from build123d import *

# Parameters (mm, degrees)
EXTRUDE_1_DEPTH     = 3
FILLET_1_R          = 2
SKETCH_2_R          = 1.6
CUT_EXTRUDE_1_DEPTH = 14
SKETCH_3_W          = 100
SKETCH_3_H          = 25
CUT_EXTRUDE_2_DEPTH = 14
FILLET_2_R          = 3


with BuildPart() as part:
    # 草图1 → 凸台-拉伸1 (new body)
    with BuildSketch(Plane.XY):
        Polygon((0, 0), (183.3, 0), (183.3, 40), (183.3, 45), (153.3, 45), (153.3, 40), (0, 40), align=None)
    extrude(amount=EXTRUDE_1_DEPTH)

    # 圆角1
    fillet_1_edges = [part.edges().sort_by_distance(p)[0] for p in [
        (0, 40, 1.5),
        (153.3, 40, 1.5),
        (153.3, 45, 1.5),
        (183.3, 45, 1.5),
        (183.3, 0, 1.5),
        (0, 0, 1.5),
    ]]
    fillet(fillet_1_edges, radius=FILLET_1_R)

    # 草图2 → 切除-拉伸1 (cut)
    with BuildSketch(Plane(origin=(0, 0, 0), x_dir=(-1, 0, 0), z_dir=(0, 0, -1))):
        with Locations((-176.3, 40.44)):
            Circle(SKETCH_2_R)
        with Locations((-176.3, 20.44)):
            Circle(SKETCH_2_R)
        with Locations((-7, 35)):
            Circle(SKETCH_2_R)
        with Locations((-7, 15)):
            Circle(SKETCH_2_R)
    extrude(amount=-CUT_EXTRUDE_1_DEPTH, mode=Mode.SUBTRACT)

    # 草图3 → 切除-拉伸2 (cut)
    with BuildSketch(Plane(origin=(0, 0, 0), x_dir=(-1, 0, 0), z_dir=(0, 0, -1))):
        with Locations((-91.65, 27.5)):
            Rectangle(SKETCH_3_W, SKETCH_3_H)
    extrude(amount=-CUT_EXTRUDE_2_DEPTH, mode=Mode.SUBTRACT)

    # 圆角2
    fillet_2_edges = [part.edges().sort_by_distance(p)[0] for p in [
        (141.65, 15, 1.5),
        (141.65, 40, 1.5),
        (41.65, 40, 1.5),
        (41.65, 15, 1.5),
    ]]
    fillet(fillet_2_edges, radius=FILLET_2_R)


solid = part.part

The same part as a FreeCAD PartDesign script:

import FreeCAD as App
import Part
import Sketcher

V = App.Vector
Q = App.Units.Quantity


def edges_at(feature, points):
    """Names of the edges that pass closest to the given points."""
    edges = feature.Shape.Edges
    near = lambda p: min(range(len(edges)), key=lambda i: edges[i].distToShape(Part.Vertex(*p))[0])
    return sorted({f"Edge{near(p) + 1}" for p in points})

doc = App.newDocument("Part")
body = doc.addObject("PartDesign::Body", "Body")

# Sketch on XY plane
sketch1 = body.newObject("Sketcher::SketchObject", "Sketch")
sketch1.AttachmentSupport = (doc.getObject("XY_Plane"), [""])
sketch1.MapMode = "FlatFace"
sketch1.addGeometry(Part.LineSegment(V(0, 0, 0), V(183.3, 0, 0)), False)
sketch1.addGeometry(Part.LineSegment(V(183.3, 0, 0), V(183.3, 45, 0)), False)
sketch1.addGeometry(Part.LineSegment(V(183.3, 45, 0), V(153.3, 45, 0)), False)
sketch1.addGeometry(Part.LineSegment(V(153.3, 45, 0), V(153.3, 40, 0)), False)
sketch1.addGeometry(Part.LineSegment(V(153.3, 40, 0), V(0, 40, 0)), False)
sketch1.addGeometry(Part.LineSegment(V(0, 40, 0), V(0, 0, 0)), False)
sketch1.addConstraint(Sketcher.Constraint("Coincident", 0, 2, 1, 1))
sketch1.addConstraint(Sketcher.Constraint("Coincident", 1, 2, 2, 1))
sketch1.addConstraint(Sketcher.Constraint("Coincident", 2, 2, 3, 1))
sketch1.addConstraint(Sketcher.Constraint("Coincident", 3, 2, 4, 1))
sketch1.addConstraint(Sketcher.Constraint("Coincident", 4, 2, 5, 1))
sketch1.addConstraint(Sketcher.Constraint("Coincident", 5, 2, 0, 1))
sketch1.addConstraint(Sketcher.Constraint("Horizontal", 0))
sketch1.addConstraint(Sketcher.Constraint("Vertical", 1))
sketch1.addConstraint(Sketcher.Constraint("Horizontal", 2))
sketch1.addConstraint(Sketcher.Constraint("Vertical", 3))
sketch1.addConstraint(Sketcher.Constraint("Horizontal", 4))
sketch1.addConstraint(Sketcher.Constraint("Vertical", 5))
sketch1.addConstraint(Sketcher.Constraint("Coincident", 5, 2, -1, 1))
sketch1.addConstraint(Sketcher.Constraint("DistanceX", 2, 2, 2, 1, Q("30 mm")))
sketch1.addConstraint(Sketcher.Constraint("DistanceY", 1, 1, 1, 2, Q("45 mm")))
sketch1.addConstraint(Sketcher.Constraint("DistanceY", 3, 2, 3, 1, Q("5 mm")))
sketch1.addConstraint(Sketcher.Constraint("DistanceX", 0, 1, 0, 2, Q("183.3 mm")))
pad1 = body.newObject("PartDesign::Pad", "Pad")
pad1.Profile = sketch1
pad1.Length = 3
doc.recompute()

fillet = body.newObject("PartDesign::Fillet", "Fillet")
fillet.Base = (pad1, edges_at(pad1, [
    (0, 40, 1.5),
    (153.3, 40, 1.5),
    (153.3, 45, 1.5),
    (183.3, 45, 1.5),
    (183.3, 0, 1.5),
    (0, 0, 1.5),
]))
fillet.Radius = 2

# Sketch on XY plane
sketch2 = body.newObject("Sketcher::SketchObject", "Sketch001")
sketch2.AttachmentSupport = (doc.getObject("XY_Plane"), [""])
sketch2.MapMode = "FlatFace"
sketch2.addGeometry(Part.Circle(V(176.3, 40.44, 0), V(0, 0, 1), 1.6), False)
sketch2.addGeometry(Part.Circle(V(176.3, 20.44, 0), V(0, 0, 1), 1.6), False)
sketch2.addGeometry(Part.Circle(V(7, 35, 0), V(0, 0, 1), 1.6), False)
sketch2.addGeometry(Part.Circle(V(7, 15, 0), V(0, 0, 1), 1.6), False)
sketch2.addConstraint(Sketcher.Constraint("Equal", 0, 1))
sketch2.addConstraint(Sketcher.Constraint("Equal", 1, 2))
sketch2.addConstraint(Sketcher.Constraint("Equal", 2, 3))
sketch2.addConstraint(Sketcher.Constraint("Vertical", 0, 3, 1, 3))
sketch2.addConstraint(Sketcher.Constraint("Vertical", 2, 3, 3, 3))
sketch2.addConstraint(Sketcher.Constraint("Diameter", 0, Q("3.2 mm")))
sketch2.addConstraint(Sketcher.Constraint("DistanceX", -1, 1, 2, 3, Q("7 mm")))
sketch2.addConstraint(Sketcher.Constraint("DistanceY", -1, 1, 2, 3, Q("35 mm")))
sketch2.addConstraint(Sketcher.Constraint("DistanceY", -1, 1, 3, 3, Q("15 mm")))
sketch2.addConstraint(Sketcher.Constraint("DistanceY", 1, 3, 0, 3, Q("20 mm")))
sketch2.addConstraint(Sketcher.Constraint("DistanceX", -1, 1, 0, 3, Q("176.3 mm")))
sketch2.addConstraint(Sketcher.Constraint("DistanceY", -1, 1, 0, 3, Q("40.44 mm")))
pocket1 = body.newObject("PartDesign::Pocket", "Pocket")
pocket1.Profile = sketch2
pocket1.Length = 14
pocket1.Reversed = True

# Sketch on XY plane
sketch3 = body.newObject("Sketcher::SketchObject", "Sketch002")
sketch3.AttachmentSupport = (doc.getObject("XY_Plane"), [""])
sketch3.MapMode = "FlatFace"
sketch3.addGeometry(Part.LineSegment(V(141.65, 40, 0), V(141.65, 15, 0)), False)
sketch3.addGeometry(Part.LineSegment(V(141.65, 15, 0), V(41.65, 15, 0)), False)
sketch3.addGeometry(Part.LineSegment(V(41.65, 15, 0), V(41.65, 40, 0)), False)
sketch3.addGeometry(Part.LineSegment(V(41.65, 40, 0), V(141.65, 40, 0)), False)
sketch3.addConstraint(Sketcher.Constraint("Coincident", 0, 2, 1, 1))
sketch3.addConstraint(Sketcher.Constraint("Coincident", 1, 2, 2, 1))
sketch3.addConstraint(Sketcher.Constraint("Coincident", 2, 2, 3, 1))
sketch3.addConstraint(Sketcher.Constraint("Coincident", 3, 2, 0, 1))
sketch3.addConstraint(Sketcher.Constraint("Vertical", 0))
sketch3.addConstraint(Sketcher.Constraint("Horizontal", 1))
sketch3.addConstraint(Sketcher.Constraint("Vertical", 2))
sketch3.addConstraint(Sketcher.Constraint("Horizontal", 3))
sketch3.addConstraint(Sketcher.Constraint("DistanceX", 1, 2, 1, 1, Q("100 mm")))
sketch3.addConstraint(Sketcher.Constraint("DistanceY", 0, 2, 0, 1, Q("25 mm")))
sketch3.addConstraint(Sketcher.Constraint("DistanceY", -1, 1, 0, 2, Q("15 mm")))
sketch3.addConstraint(Sketcher.Constraint("DistanceX", -1, 1, 0, 2, Q("141.65 mm")))
pocket2 = body.newObject("PartDesign::Pocket", "Pocket001")
pocket2.Profile = sketch3
pocket2.Length = 14
pocket2.Reversed = True
doc.recompute()

fillet2 = body.newObject("PartDesign::Fillet", "Fillet001")
fillet2.Base = (pocket2, edges_at(pocket2, [
    (141.65, 15, 1.5),
    (141.65, 40, 1.5),
    (41.65, 40, 1.5),
    (41.65, 15, 1.5),
]))
fillet2.Radius = 3

doc.recompute()
